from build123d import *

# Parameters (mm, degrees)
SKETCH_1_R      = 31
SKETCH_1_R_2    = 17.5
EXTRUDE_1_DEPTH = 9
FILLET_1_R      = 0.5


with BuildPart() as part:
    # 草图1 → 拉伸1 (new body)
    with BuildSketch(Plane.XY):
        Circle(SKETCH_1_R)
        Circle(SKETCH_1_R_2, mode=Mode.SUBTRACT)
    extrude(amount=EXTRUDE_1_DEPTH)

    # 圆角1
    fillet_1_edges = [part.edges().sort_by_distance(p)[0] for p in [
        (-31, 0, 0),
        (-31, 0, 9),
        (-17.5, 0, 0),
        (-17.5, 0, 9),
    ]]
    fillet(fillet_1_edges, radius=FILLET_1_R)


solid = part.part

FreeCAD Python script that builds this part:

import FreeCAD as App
import Part
import Sketcher


def edges_at(feature, points):
    """Names of the edges that pass closest to the given points."""
    edges = feature.Shape.Edges
    near = lambda p: min(range(len(edges)), key=lambda i: edges[i].distToShape(Part.Vertex(*p))[0])
    return sorted({f"Edge{near(p) + 1}" for p in points})

doc = App.newDocument("Part")
body = doc.addObject("PartDesign::Body", "Body")

# Sketch on XY plane
sketch1 = body.newObject("Sketcher::SketchObject", "Sketch")
sketch1.AttachmentSupport = (doc.getObject("XY_Plane"), [""])
sketch1.MapMode = "FlatFace"
sketch1.addGeometry(Part.Circle(App.Vector(0, 0, 0), App.Vector(0, 0, 1), 31), False)
sketch1.addGeometry(Part.Circle(App.Vector(0, 0, 0), App.Vector(0, 0, 1), 18), False)
sketch1.addConstraint(Sketcher.Constraint("Coincident", 0, 3, -1, 1))
sketch1.addConstraint(Sketcher.Constraint("Coincident", 1, 3, -1, 1))
sketch1.addConstraint(Sketcher.Constraint("Diameter", 0, 62.0))
sketch1.addConstraint(Sketcher.Constraint("Diameter", 1, 35.0))
pad1 = body.newObject("PartDesign::Pad", "Pad")
pad1.Profile = sketch1
pad1.Length = 9
doc.recompute()

fillet = body.newObject("PartDesign::Fillet", "Fillet")
fillet.Base = (pad1, edges_at(pad1, [
    (-31, 0, 0),
    (-31, 0, 9),
    (-17.5, 0, 0),
    (-17.5, 0, 9),
]))
fillet.Radius = 0.5

doc.recompute()
